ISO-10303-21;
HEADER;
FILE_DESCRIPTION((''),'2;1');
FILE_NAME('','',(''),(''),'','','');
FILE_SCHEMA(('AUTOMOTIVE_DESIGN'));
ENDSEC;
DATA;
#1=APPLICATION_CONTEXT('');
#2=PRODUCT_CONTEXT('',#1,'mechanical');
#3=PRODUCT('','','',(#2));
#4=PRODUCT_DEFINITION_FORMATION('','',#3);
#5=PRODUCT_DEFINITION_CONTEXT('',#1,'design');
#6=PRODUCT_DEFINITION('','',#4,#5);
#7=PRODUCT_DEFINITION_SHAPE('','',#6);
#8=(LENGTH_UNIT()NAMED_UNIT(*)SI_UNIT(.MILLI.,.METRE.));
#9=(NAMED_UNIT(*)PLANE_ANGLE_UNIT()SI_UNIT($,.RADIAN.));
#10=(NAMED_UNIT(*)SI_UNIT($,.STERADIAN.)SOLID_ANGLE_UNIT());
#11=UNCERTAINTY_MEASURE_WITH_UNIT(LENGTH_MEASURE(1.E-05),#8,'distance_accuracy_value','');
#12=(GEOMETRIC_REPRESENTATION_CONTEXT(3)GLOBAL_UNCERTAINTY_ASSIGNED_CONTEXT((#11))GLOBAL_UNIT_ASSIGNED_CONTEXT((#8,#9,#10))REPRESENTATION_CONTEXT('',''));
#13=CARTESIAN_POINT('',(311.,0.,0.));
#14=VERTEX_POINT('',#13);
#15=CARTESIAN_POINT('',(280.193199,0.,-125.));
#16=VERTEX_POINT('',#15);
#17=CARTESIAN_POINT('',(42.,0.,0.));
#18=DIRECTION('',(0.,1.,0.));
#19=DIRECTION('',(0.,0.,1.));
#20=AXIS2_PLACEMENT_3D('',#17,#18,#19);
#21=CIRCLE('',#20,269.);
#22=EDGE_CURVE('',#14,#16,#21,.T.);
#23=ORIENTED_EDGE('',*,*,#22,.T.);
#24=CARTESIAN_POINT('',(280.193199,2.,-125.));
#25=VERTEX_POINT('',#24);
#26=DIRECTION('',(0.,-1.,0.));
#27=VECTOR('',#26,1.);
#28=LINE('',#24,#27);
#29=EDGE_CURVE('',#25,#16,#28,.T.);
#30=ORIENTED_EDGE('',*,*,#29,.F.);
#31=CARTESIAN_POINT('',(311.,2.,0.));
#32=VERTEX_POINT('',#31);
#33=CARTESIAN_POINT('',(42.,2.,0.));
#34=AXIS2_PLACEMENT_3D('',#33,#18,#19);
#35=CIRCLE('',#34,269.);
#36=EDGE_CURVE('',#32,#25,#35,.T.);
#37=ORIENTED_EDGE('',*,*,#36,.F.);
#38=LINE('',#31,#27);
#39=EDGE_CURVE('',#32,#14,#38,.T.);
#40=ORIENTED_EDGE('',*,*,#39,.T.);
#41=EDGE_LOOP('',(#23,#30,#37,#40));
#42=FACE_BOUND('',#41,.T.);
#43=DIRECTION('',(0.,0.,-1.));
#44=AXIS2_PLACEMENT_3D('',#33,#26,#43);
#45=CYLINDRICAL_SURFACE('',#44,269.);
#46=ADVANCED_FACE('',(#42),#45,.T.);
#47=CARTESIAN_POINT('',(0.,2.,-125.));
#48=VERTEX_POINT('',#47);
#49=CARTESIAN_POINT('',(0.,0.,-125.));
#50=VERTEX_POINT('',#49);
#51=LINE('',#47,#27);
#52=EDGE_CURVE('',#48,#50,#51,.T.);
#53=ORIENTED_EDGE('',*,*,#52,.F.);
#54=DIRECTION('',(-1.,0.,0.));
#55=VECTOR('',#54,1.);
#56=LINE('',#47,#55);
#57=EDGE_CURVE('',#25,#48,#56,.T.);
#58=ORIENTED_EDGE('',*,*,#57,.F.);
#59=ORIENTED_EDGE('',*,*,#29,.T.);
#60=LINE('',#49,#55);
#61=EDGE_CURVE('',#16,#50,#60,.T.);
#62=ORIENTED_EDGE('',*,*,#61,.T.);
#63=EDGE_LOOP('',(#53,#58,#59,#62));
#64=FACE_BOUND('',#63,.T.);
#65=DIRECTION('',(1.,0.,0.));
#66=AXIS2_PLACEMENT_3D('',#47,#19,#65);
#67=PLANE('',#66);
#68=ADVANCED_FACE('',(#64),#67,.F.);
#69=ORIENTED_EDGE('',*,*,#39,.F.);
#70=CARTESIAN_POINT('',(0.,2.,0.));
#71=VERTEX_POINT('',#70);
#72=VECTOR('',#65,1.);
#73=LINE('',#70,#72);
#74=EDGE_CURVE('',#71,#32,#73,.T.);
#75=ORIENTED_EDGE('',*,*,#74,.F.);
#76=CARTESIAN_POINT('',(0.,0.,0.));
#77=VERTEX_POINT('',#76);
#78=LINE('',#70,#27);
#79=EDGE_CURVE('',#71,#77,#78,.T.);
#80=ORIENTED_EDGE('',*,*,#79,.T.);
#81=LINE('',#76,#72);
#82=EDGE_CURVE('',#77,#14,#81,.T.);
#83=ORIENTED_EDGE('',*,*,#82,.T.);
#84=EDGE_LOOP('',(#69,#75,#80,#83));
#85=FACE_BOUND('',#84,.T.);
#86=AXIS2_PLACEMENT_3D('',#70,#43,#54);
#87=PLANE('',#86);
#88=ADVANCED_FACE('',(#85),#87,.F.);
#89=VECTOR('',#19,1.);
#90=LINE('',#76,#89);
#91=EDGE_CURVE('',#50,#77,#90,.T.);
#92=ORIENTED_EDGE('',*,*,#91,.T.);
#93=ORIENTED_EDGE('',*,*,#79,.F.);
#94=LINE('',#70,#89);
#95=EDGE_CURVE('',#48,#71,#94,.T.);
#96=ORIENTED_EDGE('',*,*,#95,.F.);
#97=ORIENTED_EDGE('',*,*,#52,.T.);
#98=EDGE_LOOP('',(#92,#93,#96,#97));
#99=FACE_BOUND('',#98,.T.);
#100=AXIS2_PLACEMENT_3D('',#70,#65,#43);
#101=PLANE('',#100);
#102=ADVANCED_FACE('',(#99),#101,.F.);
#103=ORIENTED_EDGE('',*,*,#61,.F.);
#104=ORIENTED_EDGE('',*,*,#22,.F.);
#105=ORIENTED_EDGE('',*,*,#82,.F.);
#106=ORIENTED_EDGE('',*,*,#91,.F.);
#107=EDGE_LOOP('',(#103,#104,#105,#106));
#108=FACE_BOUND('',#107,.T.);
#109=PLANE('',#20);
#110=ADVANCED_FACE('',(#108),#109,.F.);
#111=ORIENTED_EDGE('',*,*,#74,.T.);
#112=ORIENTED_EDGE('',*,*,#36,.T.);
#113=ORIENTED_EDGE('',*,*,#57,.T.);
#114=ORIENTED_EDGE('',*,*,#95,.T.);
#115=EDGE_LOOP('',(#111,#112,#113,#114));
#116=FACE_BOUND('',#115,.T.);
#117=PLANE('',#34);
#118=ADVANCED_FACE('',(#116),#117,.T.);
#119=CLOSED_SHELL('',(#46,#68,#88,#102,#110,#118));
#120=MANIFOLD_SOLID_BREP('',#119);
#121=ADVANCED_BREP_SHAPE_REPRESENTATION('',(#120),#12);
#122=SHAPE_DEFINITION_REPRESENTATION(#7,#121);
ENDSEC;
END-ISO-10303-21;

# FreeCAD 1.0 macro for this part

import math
import FreeCAD as App
import Part
import Sketcher

doc = App.newDocument("Part")
body = doc.addObject("PartDesign::Body", "Body")

sketch1 = body.newObject("Sketcher::SketchObject", "Sketch")
sketch1.AttachmentSupport = (doc.getObject("XZ_Plane"), [""])
sketch1.MapMode = "FlatFace"
sketch1.addGeometry(Part.LineSegment(App.Vector(0, 0, 0), App.Vector(311, 0, 0)), False)
sketch1.addGeometry(Part.ArcOfCircle(Part.Circle(App.Vector(42, 0, 0), App.Vector(0, 0, 1), 269), math.radians(-27.689774), math.radians(0)), False)
sketch1.addGeometry(Part.LineSegment(App.Vector(280.193199, -125, 0), App.Vector(0, -125, 0)), False)
sketch1.addGeometry(Part.LineSegment(App.Vector(0, -125, 0), App.Vector(0, 0, 0)), False)
sketch1.addConstraint(Sketcher.Constraint("Coincident", 0, 2, 1, 2))
sketch1.addConstraint(Sketcher.Constraint("Coincident", 1, 1, 2, 1))
sketch1.addConstraint(Sketcher.Constraint("Coincident", 2, 2, 3, 1))
sketch1.addConstraint(Sketcher.Constraint("Coincident", 3, 2, 0, 1))
sketch1.addConstraint(Sketcher.Constraint("Horizontal", 0))
sketch1.addConstraint(Sketcher.Constraint("Horizontal", 2))
sketch1.addConstraint(Sketcher.Constraint("Vertical", 3))
sketch1.addConstraint(Sketcher.Constraint("Coincident", 3, 2, -1, 1))
sketch1.addConstraint(Sketcher.Constraint("PointOnObject", 1, 3, -1))
sketch1.addConstraint(Sketcher.Constraint("Radius", 1, 269.0))
sketch1.addConstraint(Sketcher.Constraint("DistanceX", 0, 1, 0, 2, 311.0))
sketch1.addConstraint(Sketcher.Constraint("DistanceY", 3, 1, 3, 2, 125.0))
pad1 = body.newObject("PartDesign::Pad", "Pad")
pad1.Profile = sketch1
pad1.Length = 2
pad1.Reversed = True

doc.recompute()
